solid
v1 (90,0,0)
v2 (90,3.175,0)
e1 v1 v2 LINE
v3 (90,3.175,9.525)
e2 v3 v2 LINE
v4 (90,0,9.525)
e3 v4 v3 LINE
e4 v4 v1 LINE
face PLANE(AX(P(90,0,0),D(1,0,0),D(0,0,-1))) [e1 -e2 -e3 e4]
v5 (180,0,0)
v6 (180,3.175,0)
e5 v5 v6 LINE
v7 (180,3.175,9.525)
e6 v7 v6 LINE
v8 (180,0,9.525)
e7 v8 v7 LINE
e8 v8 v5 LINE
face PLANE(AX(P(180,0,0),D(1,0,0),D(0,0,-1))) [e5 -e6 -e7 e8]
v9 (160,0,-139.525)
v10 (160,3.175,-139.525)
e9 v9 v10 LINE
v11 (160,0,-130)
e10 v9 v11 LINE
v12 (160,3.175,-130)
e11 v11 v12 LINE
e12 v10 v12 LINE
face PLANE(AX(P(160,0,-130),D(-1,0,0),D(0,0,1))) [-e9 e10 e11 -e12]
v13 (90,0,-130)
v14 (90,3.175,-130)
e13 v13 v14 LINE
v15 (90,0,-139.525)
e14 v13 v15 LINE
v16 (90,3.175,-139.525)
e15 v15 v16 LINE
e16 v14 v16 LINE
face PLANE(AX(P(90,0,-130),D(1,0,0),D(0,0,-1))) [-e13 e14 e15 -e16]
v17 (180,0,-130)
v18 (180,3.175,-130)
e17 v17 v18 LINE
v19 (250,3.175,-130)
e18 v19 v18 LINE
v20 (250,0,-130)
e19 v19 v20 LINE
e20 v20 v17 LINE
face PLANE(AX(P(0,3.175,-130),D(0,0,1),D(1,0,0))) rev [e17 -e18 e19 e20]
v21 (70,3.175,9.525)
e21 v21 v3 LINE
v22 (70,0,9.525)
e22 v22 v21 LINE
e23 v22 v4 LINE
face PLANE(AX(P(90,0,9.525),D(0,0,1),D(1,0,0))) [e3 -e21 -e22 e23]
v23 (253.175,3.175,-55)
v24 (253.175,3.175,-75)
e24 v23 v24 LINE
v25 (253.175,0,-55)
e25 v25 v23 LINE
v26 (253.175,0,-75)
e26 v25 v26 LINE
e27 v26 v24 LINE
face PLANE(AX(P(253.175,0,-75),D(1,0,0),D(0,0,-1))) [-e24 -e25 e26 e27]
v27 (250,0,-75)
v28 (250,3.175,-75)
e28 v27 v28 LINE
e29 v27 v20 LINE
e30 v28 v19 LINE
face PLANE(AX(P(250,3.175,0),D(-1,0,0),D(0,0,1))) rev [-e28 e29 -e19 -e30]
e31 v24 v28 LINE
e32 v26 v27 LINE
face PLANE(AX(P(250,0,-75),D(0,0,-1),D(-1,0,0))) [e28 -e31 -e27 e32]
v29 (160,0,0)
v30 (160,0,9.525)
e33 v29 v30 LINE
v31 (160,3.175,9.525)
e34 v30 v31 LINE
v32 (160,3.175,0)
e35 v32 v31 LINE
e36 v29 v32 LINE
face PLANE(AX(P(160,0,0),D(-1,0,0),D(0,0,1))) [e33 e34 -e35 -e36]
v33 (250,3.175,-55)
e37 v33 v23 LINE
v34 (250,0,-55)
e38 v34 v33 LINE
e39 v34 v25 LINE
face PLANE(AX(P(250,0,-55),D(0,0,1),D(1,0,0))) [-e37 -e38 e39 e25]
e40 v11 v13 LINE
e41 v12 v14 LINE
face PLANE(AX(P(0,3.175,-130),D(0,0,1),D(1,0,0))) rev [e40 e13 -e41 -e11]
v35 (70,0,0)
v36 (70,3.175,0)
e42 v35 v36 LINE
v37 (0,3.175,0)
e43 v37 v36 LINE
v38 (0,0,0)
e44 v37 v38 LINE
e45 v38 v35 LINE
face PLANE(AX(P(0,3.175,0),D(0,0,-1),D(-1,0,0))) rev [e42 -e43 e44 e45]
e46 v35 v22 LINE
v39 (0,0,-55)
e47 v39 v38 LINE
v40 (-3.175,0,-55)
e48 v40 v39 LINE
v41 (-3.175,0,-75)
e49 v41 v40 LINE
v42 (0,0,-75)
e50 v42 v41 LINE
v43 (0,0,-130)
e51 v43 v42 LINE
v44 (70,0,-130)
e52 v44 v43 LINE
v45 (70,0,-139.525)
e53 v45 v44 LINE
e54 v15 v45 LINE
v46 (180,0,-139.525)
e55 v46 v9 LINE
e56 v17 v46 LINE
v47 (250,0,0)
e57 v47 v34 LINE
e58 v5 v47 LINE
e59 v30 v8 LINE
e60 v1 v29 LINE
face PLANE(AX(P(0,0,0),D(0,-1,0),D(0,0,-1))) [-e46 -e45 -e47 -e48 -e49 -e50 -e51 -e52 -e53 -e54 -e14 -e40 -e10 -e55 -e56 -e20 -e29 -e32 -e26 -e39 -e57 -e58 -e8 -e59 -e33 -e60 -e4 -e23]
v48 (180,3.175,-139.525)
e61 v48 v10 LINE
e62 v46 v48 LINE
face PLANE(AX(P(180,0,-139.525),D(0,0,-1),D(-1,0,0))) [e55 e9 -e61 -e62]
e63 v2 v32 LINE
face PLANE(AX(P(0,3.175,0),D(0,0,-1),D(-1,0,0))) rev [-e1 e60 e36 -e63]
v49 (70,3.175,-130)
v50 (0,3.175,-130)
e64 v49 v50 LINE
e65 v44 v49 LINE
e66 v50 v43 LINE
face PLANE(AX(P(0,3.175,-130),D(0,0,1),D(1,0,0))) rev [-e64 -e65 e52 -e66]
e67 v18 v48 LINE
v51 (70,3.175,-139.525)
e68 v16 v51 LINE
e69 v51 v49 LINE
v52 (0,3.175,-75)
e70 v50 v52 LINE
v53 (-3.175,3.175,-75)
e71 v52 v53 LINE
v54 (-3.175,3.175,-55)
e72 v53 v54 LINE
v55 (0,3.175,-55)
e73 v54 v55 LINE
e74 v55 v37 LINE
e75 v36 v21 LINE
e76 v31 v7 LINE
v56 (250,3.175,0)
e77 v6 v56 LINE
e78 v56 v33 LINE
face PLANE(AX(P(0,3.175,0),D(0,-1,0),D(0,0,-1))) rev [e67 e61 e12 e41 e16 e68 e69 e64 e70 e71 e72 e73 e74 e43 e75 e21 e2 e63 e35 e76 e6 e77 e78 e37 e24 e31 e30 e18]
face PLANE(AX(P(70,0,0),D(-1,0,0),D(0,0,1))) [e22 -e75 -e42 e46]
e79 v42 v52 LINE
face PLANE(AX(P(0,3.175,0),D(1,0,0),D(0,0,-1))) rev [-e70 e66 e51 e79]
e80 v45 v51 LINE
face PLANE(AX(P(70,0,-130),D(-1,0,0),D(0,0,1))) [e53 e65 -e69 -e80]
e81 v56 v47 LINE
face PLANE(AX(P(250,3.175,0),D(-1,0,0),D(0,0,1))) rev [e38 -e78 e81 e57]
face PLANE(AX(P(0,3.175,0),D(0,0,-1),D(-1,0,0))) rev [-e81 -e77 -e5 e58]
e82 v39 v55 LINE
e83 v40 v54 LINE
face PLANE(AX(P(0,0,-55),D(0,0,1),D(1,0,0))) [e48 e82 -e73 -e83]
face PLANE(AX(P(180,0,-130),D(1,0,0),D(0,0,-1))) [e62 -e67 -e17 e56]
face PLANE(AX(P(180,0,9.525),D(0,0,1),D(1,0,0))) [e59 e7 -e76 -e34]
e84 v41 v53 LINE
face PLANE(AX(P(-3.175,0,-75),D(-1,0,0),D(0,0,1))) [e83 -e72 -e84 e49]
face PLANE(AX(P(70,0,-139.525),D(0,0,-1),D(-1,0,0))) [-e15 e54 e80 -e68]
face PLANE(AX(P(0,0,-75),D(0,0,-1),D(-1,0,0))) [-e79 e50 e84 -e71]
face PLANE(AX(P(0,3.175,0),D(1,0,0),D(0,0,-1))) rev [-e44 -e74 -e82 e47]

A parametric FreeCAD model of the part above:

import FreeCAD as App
import Part
import Sketcher


def add_polygon(sketch, points):
    """Adds a closed chain of lines whose ends are joined by coincident constraints."""
    first, n = sketch.GeometryCount, len(points)
    for a, b in zip(points, points[1:] + points[:1]):
        sketch.addGeometry(Part.LineSegment(App.Vector(*a, 0), App.Vector(*b, 0)), False)
    for i in range(n):
        sketch.addConstraint(Sketcher.Constraint("Coincident", first + i, 2, first + (i + 1) % n, 1))

doc = App.newDocument("Part")
body = doc.addObject("PartDesign::Body", "Body")

# Sketch on XZ plane
sketch1 = body.newObject("Sketcher::SketchObject", "Sketch")
sketch1.AttachmentSupport = (doc.getObject("XZ_Plane"), [""])
sketch1.MapMode = "FlatFace"
add_polygon(sketch1, [(0, -130), (0, 0), (250, 0), (250, -130)])  # lines 0-3
sketch1.addConstraint(Sketcher.Constraint("Vertical", 0))
sketch1.addConstraint(Sketcher.Constraint("Horizontal", 1))
sketch1.addConstraint(Sketcher.Constraint("Vertical", 2))
sketch1.addConstraint(Sketcher.Constraint("Horizontal", 3))
sketch1.addConstraint(Sketcher.Constraint("Coincident", 0, 2, -1, 1))
sketch1.addConstraint(Sketcher.Constraint("DistanceX", 1, 1, 1, 2, 250.0))
sketch1.addConstraint(Sketcher.Constraint("DistanceY", 0, 1, 0, 2, 130.0))
pad1 = body.newObject("PartDesign::Pad", "Pad")
pad1.Profile = sketch1
pad1.Length = 3.175
pad1.Reversed = True

# Sketch on XZ plane
sketch2 = body.newObject("Sketcher::SketchObject", "Sketch001")
sketch2.AttachmentSupport = (doc.getObject("XZ_Plane"), [""])
sketch2.MapMode = "FlatFace"
sketch2.AttachmentOffset = App.Placement(App.Vector(0, 0, -3.175), App.Rotation())
add_polygon(sketch2, [(-3.175, -75), (-3.175, -55), (0, -55), (0, -75)])  # lines 0-3
add_polygon(sketch2, [(250, -75), (250, -55), (253.175, -55), (253.175, -75)])  # lines 4-7
add_polygon(sketch2, [(70, -139.525), (70, -130), (90, -130), (90, -139.525)])  # lines 8-11
add_polygon(sketch2, [(160, -139.525), (160, -130), (180, -130), (180, -139.525)])  # lines 12-15
add_polygon(sketch2, [(160, 0), (160, 9.525), (180, 9.525), (180, 0)])  # lines 16-19
add_polygon(sketch2, [(70, 0), (70, 9.525), (90, 9.525), (90, 0)])  # lines 20-23
sketch2.addConstraint(Sketcher.Constraint("Vertical", 0))
sketch2.addConstraint(Sketcher.Constraint("Horizontal", 1))
sketch2.addConstraint(Sketcher.Constraint("Vertical", 2))
sketch2.addConstraint(Sketcher.Constraint("Horizontal", 3))
sketch2.addConstraint(Sketcher.Constraint("Vertical", 4))
sketch2.addConstraint(Sketcher.Constraint("Horizontal", 5))
sketch2.addConstraint(Sketcher.Constraint("Vertical", 6))
sketch2.addConstraint(Sketcher.Constraint("Horizontal", 7))
sketch2.addConstraint(Sketcher.Constraint("Vertical", 8))
sketch2.addConstraint(Sketcher.Constraint("Horizontal", 9))
sketch2.addConstraint(Sketcher.Constraint("Vertical", 10))
sketch2.addConstraint(Sketcher.Constraint("Horizontal", 11))
sketch2.addConstraint(Sketcher.Constraint("Vertical", 12))
sketch2.addConstraint(Sketcher.Constraint("Horizontal", 13))
sketch2.addConstraint(Sketcher.Constraint("Vertical", 14))
sketch2.addConstraint(Sketcher.Constraint("Horizontal", 15))
sketch2.addConstraint(Sketcher.Constraint("Vertical", 16))
sketch2.addConstraint(Sketcher.Constraint("Horizontal", 17))
sketch2.addConstraint(Sketcher.Constraint("Vertical", 18))
sketch2.addConstraint(Sketcher.Constraint("Horizontal", 19))
sketch2.addConstraint(Sketcher.Constraint("Vertical", 20))
sketch2.addConstraint(Sketcher.Constraint("Horizontal", 21))
sketch2.addConstraint(Sketcher.Constraint("Vertical", 22))
sketch2.addConstraint(Sketcher.Constraint("Horizontal", 23))
sketch2.addConstraint(Sketcher.Constraint("PointOnObject", 1, 2, -2))
sketch2.addConstraint(Sketcher.Constraint("PointOnObject", 18, 2, -1))
sketch2.addConstraint(Sketcher.Constraint("PointOnObject", 22, 2, -1))
sketch2.addConstraint(Sketcher.Constraint("Horizontal", 1, 2, 4, 2))
sketch2.addConstraint(Sketcher.Constraint("Horizontal", 3, 2, 6, 2))
sketch2.addConstraint(Sketcher.Constraint("Horizontal", 9, 2, 12, 2))
sketch2.addConstraint(Sketcher.Constraint("Horizontal", 11, 2, 14, 2))
sketch2.addConstraint(Sketcher.Constraint("Horizontal", 17, 2, 20, 2))
sketch2.addConstraint(Sketcher.Constraint("Vertical", 15, 2, 16, 2))
sketch2.addConstraint(Sketcher.Constraint("Vertical", 14, 2, 17, 2))
sketch2.addConstraint(Sketcher.Constraint("Vertical", 11, 2, 20, 2))
sketch2.addConstraint(Sketcher.Constraint("Vertical", 10, 2, 21, 2))
sketch2.addConstraint(Sketcher.Constraint("Equal", 3, 5))
sketch2.addConstraint(Sketcher.Constraint("Equal", 11, 13))
sketch2.addConstraint(Sketcher.Constraint("Equal", 23, 0))
sketch2.addConstraint(Sketcher.Constraint("Equal", 14, 16))
sketch2.addConstraint(Sketcher.Constraint("DistanceX", 9, 1, 9, 2, 20.0))
sketch2.addConstraint(Sketcher.Constraint("DistanceY", 0, 2, -1, 1, 55.0))
sketch2.addConstraint(Sketcher.Constraint("DistanceX", -1, 1, 4, 2, 250.0))
sketch2.addConstraint(Sketcher.Constraint("DistanceX", -1, 1, 8, 2, 70.0))
sketch2.addConstraint(Sketcher.Constraint("DistanceY", 8, 2, -1, 1, 130.0))
sketch2.addConstraint(Sketcher.Constraint("DistanceX", -1, 1, 12, 2, 160.0))
sketch2.addConstraint(Sketcher.Constraint("DistanceX", 1, 1, 1, 2, 3.175))
sketch2.addConstraint(Sketcher.Constraint("DistanceY", 8, 1, 8, 2, 9.525))
pad2 = body.newObject("PartDesign::Pad", "Pad001")
pad2.Profile = sketch2
pad2.Length = 3.175

doc.recompute()
